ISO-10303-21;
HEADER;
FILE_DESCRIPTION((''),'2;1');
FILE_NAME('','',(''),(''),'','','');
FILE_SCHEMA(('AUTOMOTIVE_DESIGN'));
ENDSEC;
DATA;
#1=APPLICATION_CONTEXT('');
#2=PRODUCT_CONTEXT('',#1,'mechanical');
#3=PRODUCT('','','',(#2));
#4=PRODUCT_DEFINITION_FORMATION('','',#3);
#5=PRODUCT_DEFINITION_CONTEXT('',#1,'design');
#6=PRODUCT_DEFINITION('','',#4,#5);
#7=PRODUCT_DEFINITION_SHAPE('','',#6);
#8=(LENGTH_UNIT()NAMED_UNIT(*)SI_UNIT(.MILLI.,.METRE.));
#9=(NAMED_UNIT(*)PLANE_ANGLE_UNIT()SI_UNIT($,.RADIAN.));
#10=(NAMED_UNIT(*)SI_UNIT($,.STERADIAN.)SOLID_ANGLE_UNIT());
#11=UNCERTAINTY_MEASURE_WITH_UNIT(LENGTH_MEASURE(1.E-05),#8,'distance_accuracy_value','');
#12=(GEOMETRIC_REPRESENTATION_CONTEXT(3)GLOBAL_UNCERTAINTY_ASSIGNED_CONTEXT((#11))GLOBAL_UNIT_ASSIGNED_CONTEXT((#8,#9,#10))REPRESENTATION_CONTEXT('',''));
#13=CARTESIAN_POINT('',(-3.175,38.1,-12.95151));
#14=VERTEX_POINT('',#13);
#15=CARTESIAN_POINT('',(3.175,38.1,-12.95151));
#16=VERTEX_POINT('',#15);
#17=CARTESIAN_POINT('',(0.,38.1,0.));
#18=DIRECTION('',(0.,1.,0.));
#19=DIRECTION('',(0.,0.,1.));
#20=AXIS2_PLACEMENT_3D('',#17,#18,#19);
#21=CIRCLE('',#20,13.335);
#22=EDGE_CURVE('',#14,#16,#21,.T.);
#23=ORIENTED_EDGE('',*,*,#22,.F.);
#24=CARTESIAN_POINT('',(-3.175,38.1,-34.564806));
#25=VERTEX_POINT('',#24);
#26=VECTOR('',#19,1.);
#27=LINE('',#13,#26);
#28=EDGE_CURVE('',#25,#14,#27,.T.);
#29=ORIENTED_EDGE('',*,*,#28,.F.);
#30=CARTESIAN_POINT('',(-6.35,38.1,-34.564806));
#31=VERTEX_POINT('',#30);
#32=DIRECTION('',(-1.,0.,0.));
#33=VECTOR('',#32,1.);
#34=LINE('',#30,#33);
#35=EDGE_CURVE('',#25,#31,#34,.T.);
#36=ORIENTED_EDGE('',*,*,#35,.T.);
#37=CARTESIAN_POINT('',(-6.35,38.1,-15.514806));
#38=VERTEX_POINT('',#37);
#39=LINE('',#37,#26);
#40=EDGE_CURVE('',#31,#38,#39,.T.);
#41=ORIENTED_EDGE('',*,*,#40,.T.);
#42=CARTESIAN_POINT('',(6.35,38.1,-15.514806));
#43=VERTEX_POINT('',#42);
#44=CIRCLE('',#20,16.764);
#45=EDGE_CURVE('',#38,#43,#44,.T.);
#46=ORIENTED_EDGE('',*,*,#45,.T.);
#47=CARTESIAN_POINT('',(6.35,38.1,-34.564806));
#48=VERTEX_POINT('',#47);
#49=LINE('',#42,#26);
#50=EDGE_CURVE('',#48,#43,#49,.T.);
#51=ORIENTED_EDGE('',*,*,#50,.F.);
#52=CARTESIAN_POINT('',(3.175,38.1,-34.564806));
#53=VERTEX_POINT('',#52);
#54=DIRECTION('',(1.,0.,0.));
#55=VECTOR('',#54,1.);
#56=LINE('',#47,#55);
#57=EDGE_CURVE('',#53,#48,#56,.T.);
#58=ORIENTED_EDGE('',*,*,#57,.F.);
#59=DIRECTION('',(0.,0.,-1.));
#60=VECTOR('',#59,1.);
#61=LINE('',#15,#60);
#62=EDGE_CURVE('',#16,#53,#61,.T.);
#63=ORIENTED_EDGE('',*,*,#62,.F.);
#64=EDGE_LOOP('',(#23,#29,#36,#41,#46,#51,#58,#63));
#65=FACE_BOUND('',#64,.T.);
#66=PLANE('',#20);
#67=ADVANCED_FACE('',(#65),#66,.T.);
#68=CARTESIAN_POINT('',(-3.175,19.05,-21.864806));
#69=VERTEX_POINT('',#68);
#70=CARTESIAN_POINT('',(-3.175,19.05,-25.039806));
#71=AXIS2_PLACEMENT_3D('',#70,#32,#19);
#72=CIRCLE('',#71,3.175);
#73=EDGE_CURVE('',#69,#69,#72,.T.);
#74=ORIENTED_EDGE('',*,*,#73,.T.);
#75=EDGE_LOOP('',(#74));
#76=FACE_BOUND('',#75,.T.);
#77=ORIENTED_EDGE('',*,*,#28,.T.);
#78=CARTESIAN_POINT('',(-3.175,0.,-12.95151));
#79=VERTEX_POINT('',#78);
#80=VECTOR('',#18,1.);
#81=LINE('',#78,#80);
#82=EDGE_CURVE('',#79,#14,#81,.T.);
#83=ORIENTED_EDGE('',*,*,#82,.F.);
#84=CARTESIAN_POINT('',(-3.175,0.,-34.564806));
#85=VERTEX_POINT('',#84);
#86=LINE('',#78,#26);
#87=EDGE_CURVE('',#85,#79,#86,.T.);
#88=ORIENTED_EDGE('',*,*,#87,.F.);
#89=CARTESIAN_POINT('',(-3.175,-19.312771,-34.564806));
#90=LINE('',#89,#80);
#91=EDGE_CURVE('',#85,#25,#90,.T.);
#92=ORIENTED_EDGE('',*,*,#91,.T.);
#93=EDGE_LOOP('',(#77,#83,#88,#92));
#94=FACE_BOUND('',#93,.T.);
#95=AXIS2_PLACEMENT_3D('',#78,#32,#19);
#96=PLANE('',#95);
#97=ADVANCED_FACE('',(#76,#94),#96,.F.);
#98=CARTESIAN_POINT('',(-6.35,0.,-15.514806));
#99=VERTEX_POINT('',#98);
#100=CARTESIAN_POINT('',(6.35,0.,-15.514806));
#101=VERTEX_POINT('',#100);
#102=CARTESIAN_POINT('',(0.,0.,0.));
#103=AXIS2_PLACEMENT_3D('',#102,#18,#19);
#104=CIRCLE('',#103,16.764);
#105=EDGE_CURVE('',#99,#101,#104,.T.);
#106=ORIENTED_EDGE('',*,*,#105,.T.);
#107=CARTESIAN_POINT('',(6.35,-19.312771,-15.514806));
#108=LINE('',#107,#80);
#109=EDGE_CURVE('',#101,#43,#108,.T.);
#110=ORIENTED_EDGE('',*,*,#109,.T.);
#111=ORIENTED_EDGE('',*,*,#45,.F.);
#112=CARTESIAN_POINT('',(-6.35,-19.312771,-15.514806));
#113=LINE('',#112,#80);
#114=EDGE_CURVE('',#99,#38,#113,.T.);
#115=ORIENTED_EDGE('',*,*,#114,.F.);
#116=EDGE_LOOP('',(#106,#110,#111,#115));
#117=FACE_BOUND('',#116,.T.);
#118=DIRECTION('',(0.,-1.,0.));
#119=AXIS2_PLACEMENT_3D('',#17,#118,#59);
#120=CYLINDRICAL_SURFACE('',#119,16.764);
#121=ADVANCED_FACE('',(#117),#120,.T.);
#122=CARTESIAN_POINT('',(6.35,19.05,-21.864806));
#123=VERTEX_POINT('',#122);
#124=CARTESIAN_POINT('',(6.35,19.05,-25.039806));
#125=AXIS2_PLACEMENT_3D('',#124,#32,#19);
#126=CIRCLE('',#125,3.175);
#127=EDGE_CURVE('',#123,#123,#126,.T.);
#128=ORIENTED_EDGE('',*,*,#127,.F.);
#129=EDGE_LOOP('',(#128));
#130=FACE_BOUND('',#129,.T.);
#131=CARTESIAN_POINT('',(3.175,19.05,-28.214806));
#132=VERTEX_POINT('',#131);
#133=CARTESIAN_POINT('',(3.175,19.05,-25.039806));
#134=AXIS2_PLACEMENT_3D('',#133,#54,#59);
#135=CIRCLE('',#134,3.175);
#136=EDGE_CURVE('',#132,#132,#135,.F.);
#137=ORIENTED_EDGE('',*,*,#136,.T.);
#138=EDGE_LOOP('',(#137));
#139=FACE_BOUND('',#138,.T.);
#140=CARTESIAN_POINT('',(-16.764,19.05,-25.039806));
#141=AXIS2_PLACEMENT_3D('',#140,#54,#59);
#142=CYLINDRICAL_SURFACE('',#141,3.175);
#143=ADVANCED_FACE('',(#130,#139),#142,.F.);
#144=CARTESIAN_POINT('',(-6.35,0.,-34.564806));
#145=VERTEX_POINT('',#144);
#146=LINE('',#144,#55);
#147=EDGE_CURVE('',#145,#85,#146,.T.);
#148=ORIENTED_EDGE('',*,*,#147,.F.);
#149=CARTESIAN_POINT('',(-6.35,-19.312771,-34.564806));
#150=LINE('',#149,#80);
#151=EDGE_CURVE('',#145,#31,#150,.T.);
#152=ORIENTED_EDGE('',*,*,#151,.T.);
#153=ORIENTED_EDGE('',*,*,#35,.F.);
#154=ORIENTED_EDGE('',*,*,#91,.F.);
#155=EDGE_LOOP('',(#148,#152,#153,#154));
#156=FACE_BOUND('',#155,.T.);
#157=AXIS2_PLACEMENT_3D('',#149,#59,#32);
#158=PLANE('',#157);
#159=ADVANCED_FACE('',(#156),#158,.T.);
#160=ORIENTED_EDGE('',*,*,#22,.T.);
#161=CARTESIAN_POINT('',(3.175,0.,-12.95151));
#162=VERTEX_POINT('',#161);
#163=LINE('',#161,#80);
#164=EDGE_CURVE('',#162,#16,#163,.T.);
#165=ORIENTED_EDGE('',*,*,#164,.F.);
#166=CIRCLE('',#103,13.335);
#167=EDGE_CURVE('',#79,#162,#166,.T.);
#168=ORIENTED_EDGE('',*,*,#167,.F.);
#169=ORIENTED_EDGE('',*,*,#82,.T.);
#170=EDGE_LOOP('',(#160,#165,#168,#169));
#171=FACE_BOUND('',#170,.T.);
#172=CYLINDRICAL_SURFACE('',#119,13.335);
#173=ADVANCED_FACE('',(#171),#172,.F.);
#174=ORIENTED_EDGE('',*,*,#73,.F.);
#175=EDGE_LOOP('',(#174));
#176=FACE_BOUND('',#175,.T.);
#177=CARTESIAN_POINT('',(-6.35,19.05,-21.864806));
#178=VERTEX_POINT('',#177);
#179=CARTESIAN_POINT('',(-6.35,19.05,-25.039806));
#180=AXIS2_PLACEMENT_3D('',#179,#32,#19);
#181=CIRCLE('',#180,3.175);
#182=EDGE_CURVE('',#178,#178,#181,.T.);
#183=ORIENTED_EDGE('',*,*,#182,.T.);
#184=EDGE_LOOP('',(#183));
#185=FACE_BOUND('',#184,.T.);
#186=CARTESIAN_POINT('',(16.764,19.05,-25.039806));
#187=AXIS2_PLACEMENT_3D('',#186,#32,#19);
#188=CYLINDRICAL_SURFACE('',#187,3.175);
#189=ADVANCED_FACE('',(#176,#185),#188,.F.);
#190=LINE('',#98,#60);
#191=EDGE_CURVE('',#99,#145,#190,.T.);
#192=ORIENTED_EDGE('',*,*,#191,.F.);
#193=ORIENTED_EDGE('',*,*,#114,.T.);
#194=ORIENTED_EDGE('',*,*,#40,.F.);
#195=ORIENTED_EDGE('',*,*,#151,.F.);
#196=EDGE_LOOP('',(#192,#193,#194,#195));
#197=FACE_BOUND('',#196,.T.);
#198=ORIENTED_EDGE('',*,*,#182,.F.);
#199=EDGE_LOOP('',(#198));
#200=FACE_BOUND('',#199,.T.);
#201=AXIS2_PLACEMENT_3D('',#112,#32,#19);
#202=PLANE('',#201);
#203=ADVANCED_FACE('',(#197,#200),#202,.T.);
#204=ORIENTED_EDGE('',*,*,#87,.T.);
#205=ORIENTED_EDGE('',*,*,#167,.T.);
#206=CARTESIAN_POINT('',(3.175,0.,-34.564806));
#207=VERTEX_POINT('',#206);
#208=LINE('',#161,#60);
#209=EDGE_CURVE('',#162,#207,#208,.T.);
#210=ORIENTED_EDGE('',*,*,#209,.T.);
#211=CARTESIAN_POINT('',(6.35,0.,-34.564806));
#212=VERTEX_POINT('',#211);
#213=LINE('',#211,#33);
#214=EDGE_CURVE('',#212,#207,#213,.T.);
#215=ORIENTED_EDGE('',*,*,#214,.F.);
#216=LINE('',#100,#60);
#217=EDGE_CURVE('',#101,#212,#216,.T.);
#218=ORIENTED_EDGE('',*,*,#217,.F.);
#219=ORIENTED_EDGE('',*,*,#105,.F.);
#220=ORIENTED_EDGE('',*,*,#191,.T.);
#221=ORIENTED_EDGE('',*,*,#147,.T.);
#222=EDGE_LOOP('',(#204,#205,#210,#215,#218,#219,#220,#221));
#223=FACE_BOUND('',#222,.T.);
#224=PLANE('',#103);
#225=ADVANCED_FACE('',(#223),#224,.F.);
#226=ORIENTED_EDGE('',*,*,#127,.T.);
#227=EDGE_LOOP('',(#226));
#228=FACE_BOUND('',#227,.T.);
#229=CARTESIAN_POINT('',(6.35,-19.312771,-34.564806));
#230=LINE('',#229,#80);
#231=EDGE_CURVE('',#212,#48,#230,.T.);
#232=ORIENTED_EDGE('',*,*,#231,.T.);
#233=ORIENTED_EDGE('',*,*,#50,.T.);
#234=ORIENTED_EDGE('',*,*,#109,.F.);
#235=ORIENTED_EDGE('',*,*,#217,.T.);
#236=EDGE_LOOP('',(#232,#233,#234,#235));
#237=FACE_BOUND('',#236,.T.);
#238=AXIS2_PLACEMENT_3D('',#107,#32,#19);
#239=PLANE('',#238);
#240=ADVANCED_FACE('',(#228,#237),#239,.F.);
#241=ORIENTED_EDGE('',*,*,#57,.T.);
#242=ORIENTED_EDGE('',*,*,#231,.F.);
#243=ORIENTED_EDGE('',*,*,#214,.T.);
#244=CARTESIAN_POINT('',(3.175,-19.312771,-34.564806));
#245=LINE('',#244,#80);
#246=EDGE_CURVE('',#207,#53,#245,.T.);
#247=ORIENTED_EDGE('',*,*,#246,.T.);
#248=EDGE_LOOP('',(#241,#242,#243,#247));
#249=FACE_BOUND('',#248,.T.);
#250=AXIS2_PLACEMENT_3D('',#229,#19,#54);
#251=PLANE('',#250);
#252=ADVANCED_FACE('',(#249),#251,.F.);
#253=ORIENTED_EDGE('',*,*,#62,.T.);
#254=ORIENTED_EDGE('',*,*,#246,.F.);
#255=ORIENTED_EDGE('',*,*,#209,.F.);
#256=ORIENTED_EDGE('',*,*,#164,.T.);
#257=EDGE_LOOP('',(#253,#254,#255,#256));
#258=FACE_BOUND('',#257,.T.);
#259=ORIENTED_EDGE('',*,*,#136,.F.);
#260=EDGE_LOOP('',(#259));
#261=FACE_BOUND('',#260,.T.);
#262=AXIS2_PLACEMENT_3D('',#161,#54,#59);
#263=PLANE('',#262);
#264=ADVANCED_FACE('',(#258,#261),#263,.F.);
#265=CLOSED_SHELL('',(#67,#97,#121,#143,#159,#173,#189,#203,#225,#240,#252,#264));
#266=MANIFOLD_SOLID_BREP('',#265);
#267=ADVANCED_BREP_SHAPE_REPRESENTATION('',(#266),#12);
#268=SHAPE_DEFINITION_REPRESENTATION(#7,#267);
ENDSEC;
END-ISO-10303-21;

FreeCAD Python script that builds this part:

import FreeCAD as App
import Part
import Sketcher
Q = App.Units.Quantity

doc = App.newDocument("Part")
body = doc.addObject("PartDesign::Body", "Body")

# Sketch on XZ plane
sketch1 = doc.addObject("Sketcher::SketchObject", "Sketch")
body.addObject(sketch1)
sketch1.AttachmentSupport = (doc.XZ_Plane, [""])
sketch1.MapMode = "FlatFace"
sketch1.addGeometry(Part.Circle(App.Vector(0, 0, 0), App.Vector(0, 0, 1), 17), False)
sketch1.addGeometry(Part.Circle(App.Vector(0, 0, 0), App.Vector(0, 0, 1), 13), False)
sketch1.addConstraint(Sketcher.Constraint("Coincident", 0, 3, -1, 1))
sketch1.addConstraint(Sketcher.Constraint("Coincident", 1, 3, -1, 1))
sketch1.addConstraint(Sketcher.Constraint("Diameter", 0, Q("1.32 in")))
sketch1.addConstraint(Sketcher.Constraint("Diameter", 1, Q("1.05 in")))
pad1 = doc.addObject("PartDesign::Pad", "Pad")
body.addObject(pad1)
pad1.Profile = sketch1
pad1.Length = Q("1.5 in")
pad1.Reversed = True

# Sketch on XZ plane
sketch2 = doc.addObject("Sketcher::SketchObject", "Sketch001")
body.addObject(sketch2)
sketch2.AttachmentSupport = (doc.XZ_Plane, [""])
sketch2.MapMode = "FlatFace"
sketch2.AttachmentOffset = App.Placement(App.Vector(0, 0, -1.5 * 25.4), App.Rotation())
sketch2.addGeometry(Part.LineSegment(App.Vector(-3.2, -16.8, 0), App.Vector(-3.2, -13, 0)), False)
sketch2.addGeometry(Part.LineSegment(App.Vector(-3.2, -13, 0), App.Vector(3.2, -13, 0)), False)
sketch2.addGeometry(Part.LineSegment(App.Vector(3.2, -13, 0), App.Vector(3.2, -16.8, 0)), False)
sketch2.addGeometry(Part.LineSegment(App.Vector(3.2, -16.8, 0), App.Vector(-3.2, -16.8, 0)), False)
sketch2.addConstraint(Sketcher.Constraint("Coincident", 0, 2, 1, 1))
sketch2.addConstraint(Sketcher.Constraint("Coincident", 1, 2, 2, 1))
sketch2.addConstraint(Sketcher.Constraint("Coincident", 2, 2, 3, 1))
sketch2.addConstraint(Sketcher.Constraint("Coincident", 3, 2, 0, 1))
sketch2.addConstraint(Sketcher.Constraint("Vertical", 0))
sketch2.addConstraint(Sketcher.Constraint("Horizontal", 1))
sketch2.addConstraint(Sketcher.Constraint("Vertical", 2))
sketch2.addConstraint(Sketcher.Constraint("Horizontal", 3))
sketch2.addConstraint(Sketcher.Constraint("DistanceX", 1, 1, 1, 2, Q("0.25 in")))
sketch2.addConstraint(Sketcher.Constraint("DistanceY", 2, 2, -1, 1, Q("0.66 in")))
sketch2.addConstraint(Sketcher.Constraint("DistanceX", 0, 2, -1, 1, Q("0.125 in")))
sketch2.addConstraint(Sketcher.Constraint("DistanceY", 0, 1, 0, 2, 3.81249))
pocket1 = doc.addObject("PartDesign::Pocket", "Pocket")
body.addObject(pocket1)
pocket1.Profile = sketch2
pocket1.Type = "ThroughAll"
pocket1.Reversed = True

# Sketch on XZ plane
sketch3 = doc.addObject("Sketcher::SketchObject", "Sketch002")
body.addObject(sketch3)
sketch3.AttachmentSupport = (doc.XZ_Plane, [""])
sketch3.MapMode = "FlatFace"
sketch3.AttachmentOffset = App.Placement(App.Vector(0, 0, -1.5 * 25.4), App.Rotation())
sketch3.addGeometry(Part.LineSegment(App.Vector(-6.3, -34.6, 0), App.Vector(-6.3, -15.5, 0)), False)
sketch3.addGeometry(Part.LineSegment(App.Vector(-6.3, -15.5, 0), App.Vector(-3.2, -15.5, 0)), False)
sketch3.addGeometry(Part.LineSegment(App.Vector(-3.2, -15.5, 0), App.Vector(-3.2, -34.6, 0)), False)
sketch3.addGeometry(Part.LineSegment(App.Vector(-3.2, -34.6, 0), App.Vector(-6.3, -34.6, 0)), False)
sketch3.addConstraint(Sketcher.Constraint("Coincident", 0, 2, 1, 1))
sketch3.addConstraint(Sketcher.Constraint("Coincident", 1, 2, 2, 1))
sketch3.addConstraint(Sketcher.Constraint("Coincident", 2, 2, 3, 1))
sketch3.addConstraint(Sketcher.Constraint("Coincident", 3, 2, 0, 1))
sketch3.addConstraint(Sketcher.Constraint("Vertical", 0))
sketch3.addConstraint(Sketcher.Constraint("Horizontal", 1))
sketch3.addConstraint(Sketcher.Constraint("Vertical", 2))
sketch3.addConstraint(Sketcher.Constraint("Horizontal", 3))
sketch3.addConstraint(Sketcher.Constraint("DistanceY", 0, 1, 0, 2, Q("0.75 in")))
sketch3.addConstraint(Sketcher.Constraint("DistanceX", 1, 1, 1, 2, Q("0.125 in")))
sketch3.addConstraint(Sketcher.Constraint("DistanceX", 0, 2, -1, 1, Q("0.25 in")))
sketch3.addConstraint(Sketcher.Constraint("DistanceY", 0, 2, -1, 1, 15.514806))
pad2 = doc.addObject("PartDesign::Pad", "Pad001")
body.addObject(pad2)
pad2.Profile = sketch3
pad2.Length = Q("1.5 in")

# Sketch on YZ plane
sketch4 = doc.addObject("Sketcher::SketchObject", "Sketch003")
body.addObject(sketch4)
sketch4.AttachmentSupport = (doc.YZ_Plane, [""])
sketch4.MapMode = "FlatFace"
sketch4.AttachmentOffset = App.Placement(App.Vector(0, 0, -0.25 * 25.4), App.Rotation())
sketch4.addGeometry(Part.Circle(App.Vector(19.1, -25, 0), App.Vector(0, 0, 1), 3.2), False)
sketch4.addConstraint(Sketcher.Constraint("Diameter", 0, Q("0.25 in")))
sketch4.addConstraint(Sketcher.Constraint("DistanceX", -1, 1, 0, 3, Q("0.75 in")))
sketch4.addConstraint(Sketcher.Constraint("DistanceY", 0, 3, -1, 1, 25.039806))
pocket2 = doc.addObject("PartDesign::Pocket", "Pocket001")
body.addObject(pocket2)
pocket2.Profile = sketch4
pocket2.Type = "ThroughAll"
pocket2.Reversed = True
doc.recompute()

mirrored = doc.addObject("PartDesign::Mirrored", "Mirrored")
body.addObject(mirrored)
mirrored.Originals = [pad2, pocket2]
mirrored.MirrorPlane = (doc.YZ_Plane, [""])
body.Tip = mirrored

doc.recompute()
